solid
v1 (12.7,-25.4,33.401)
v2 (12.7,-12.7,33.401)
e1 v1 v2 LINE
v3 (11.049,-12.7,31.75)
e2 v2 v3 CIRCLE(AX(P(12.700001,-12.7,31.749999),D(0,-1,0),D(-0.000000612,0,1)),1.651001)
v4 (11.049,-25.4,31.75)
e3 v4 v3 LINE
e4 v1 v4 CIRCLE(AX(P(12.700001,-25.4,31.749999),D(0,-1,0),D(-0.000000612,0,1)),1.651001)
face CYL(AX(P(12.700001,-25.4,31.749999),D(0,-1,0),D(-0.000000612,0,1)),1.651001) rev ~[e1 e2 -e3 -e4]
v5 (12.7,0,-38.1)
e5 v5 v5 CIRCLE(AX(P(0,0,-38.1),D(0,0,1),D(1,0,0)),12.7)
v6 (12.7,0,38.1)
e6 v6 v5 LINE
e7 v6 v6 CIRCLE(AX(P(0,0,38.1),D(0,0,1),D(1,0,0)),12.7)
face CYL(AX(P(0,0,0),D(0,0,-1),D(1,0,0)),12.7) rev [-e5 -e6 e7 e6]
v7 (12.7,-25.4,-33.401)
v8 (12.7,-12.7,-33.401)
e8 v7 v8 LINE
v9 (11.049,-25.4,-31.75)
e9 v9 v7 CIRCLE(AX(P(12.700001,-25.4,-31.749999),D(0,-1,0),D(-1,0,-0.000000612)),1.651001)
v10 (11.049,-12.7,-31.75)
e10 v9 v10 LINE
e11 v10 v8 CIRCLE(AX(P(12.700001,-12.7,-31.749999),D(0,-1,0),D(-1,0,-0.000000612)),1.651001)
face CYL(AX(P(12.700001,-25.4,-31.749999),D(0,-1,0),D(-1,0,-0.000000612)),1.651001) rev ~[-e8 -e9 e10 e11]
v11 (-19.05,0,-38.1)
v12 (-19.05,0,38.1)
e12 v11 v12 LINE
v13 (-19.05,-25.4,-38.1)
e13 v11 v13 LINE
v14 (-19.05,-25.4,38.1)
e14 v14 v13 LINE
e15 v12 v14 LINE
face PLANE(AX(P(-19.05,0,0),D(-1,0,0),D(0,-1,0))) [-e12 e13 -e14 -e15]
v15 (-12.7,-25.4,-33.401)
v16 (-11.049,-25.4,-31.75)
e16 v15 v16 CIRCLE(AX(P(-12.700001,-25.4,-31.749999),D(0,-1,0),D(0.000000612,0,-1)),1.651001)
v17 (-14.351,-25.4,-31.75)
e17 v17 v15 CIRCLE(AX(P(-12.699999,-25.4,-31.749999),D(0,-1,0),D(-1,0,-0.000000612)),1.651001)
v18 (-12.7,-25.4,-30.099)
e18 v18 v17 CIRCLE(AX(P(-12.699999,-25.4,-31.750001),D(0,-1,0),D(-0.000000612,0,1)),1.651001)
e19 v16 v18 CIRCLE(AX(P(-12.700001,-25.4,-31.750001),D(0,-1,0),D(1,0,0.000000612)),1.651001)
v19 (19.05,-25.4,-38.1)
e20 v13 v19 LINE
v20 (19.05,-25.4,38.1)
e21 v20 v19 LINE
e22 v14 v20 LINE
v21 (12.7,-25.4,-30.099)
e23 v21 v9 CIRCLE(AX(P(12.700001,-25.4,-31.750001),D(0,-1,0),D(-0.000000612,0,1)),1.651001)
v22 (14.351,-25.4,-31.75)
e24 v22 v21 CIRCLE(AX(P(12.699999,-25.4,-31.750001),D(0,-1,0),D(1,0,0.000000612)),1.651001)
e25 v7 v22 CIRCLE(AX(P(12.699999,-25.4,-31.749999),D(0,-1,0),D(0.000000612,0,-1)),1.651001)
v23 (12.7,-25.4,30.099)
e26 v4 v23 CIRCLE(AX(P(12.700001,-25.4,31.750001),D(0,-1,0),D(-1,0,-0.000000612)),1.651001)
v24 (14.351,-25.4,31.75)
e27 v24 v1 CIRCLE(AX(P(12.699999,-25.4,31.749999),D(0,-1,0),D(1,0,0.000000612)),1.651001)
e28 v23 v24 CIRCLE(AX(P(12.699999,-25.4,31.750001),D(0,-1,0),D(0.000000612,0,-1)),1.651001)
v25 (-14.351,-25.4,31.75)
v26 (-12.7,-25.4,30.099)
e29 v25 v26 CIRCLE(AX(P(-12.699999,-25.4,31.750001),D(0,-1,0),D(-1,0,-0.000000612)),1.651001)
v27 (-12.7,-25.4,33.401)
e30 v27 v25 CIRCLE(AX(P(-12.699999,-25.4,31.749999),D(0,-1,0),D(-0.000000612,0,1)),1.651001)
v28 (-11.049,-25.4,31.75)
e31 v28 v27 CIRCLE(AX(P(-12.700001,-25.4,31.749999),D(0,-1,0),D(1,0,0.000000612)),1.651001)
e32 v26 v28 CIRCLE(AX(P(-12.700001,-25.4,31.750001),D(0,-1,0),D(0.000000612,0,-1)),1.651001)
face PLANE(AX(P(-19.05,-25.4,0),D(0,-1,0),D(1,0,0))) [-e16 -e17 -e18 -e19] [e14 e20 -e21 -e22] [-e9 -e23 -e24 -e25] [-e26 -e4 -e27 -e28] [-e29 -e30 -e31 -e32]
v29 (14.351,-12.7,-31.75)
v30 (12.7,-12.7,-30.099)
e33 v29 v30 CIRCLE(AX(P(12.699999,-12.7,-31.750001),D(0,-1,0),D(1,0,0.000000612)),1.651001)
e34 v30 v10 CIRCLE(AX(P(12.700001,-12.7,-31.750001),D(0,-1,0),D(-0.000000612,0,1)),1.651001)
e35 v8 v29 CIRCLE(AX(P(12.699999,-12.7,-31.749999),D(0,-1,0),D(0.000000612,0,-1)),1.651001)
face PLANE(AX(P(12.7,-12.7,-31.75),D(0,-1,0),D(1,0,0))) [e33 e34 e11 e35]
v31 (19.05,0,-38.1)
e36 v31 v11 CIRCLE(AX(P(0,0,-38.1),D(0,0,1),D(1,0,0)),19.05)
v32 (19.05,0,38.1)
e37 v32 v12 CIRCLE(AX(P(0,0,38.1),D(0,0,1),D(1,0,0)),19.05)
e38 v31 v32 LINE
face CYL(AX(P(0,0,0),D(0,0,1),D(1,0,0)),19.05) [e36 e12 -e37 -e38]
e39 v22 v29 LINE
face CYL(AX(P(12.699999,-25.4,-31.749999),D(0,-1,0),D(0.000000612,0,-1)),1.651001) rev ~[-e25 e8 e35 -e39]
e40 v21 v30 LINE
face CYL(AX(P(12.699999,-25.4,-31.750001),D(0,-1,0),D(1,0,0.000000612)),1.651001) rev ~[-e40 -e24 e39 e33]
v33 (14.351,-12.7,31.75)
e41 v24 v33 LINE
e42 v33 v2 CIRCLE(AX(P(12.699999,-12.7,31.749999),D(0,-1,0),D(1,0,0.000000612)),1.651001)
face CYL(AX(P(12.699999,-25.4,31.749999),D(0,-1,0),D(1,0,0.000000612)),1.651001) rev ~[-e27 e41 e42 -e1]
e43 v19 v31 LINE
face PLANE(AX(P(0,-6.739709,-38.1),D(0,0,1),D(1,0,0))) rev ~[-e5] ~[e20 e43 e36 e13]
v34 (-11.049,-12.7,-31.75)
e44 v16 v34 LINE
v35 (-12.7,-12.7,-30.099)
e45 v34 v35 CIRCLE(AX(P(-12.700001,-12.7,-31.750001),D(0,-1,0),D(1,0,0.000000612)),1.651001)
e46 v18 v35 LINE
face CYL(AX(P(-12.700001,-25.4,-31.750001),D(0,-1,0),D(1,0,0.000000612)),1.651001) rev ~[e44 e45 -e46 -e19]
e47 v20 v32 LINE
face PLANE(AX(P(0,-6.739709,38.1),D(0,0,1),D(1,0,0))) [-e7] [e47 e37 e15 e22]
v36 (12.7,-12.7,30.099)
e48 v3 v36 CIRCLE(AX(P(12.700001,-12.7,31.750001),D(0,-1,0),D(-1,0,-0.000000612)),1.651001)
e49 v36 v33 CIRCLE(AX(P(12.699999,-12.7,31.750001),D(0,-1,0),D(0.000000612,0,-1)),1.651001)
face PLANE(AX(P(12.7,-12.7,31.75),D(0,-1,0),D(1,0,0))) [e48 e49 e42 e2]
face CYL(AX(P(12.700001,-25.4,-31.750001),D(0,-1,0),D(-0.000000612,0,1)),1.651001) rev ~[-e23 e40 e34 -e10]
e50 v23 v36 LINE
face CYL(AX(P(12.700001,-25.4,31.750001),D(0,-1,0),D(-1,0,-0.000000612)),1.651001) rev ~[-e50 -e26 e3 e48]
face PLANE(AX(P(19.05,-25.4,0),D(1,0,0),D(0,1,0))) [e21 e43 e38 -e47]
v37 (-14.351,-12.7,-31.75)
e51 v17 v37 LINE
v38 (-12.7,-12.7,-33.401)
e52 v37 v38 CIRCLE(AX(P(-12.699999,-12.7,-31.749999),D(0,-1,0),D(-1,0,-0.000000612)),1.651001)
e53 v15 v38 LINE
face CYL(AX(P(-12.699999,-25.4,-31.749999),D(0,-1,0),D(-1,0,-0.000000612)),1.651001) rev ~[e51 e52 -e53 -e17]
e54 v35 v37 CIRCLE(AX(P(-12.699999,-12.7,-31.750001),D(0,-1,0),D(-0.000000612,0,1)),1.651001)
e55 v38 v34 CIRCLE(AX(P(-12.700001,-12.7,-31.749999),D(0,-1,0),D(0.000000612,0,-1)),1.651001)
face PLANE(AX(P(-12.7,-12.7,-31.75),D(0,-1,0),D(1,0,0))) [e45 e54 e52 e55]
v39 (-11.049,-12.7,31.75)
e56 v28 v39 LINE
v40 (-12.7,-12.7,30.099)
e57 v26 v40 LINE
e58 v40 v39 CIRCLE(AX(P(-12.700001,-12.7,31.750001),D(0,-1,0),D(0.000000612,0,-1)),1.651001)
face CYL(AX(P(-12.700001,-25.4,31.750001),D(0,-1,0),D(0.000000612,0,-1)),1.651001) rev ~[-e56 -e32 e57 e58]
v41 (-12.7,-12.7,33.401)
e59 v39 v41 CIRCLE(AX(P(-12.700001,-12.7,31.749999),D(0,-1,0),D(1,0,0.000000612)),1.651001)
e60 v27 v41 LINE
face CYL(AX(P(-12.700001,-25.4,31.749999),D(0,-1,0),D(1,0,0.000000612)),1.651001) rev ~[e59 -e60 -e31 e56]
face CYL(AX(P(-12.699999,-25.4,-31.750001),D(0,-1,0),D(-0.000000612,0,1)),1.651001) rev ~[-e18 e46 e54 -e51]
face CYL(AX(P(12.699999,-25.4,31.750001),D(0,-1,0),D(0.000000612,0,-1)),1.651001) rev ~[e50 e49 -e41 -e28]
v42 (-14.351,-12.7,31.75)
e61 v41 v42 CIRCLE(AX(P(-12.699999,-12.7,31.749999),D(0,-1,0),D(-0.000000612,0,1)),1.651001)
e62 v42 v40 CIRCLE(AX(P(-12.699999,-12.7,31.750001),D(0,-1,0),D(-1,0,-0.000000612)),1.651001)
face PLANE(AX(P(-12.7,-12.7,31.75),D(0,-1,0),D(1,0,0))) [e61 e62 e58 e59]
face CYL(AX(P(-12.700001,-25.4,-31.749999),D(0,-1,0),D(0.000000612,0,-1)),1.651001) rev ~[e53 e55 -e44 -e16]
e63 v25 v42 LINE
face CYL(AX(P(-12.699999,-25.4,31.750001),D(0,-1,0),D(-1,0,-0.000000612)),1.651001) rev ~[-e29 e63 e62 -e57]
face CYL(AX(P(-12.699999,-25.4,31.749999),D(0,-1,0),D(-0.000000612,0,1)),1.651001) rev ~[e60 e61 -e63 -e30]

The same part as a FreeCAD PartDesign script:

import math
import FreeCAD as App
import Part
import Sketcher
Q = App.Units.Quantity

doc = App.newDocument("Part")
body = doc.addObject("PartDesign::Body", "Body")

# Sketch on XY plane
sketch1 = body.newObject("Sketcher::SketchObject", "Sketch")
sketch1.AttachmentSupport = (doc.getObject("XY_Plane"), [""])
sketch1.MapMode = "FlatFace"
sketch1.addGeometry(Part.LineSegment(App.Vector(19.05, -25.4, 0), App.Vector(19.05, 0, 0)), False)
sketch1.addGeometry(Part.ArcOfCircle(Part.Circle(App.Vector(0, 0, 0), App.Vector(0, 0, 1), 19.05), math.radians(0), math.radians(180)), False)
sketch1.addGeometry(Part.LineSegment(App.Vector(-19.05, 0, 0), App.Vector(-19.05, -25.4, 0)), False)
sketch1.addGeometry(Part.LineSegment(App.Vector(-19.05, -25.4, 0), App.Vector(19.05, -25.4, 0)), False)
sketch1.addGeometry(Part.Circle(App.Vector(0, 0, 0), App.Vector(0, 0, 1), 12.7), False)
sketch1.addConstraint(Sketcher.Constraint("Tangent", 0, 2, 1, 1))
sketch1.addConstraint(Sketcher.Constraint("Tangent", 1, 2, 2, 1))
sketch1.addConstraint(Sketcher.Constraint("Coincident", 2, 2, 3, 1))
sketch1.addConstraint(Sketcher.Constraint("Coincident", 3, 2, 0, 1))
sketch1.addConstraint(Sketcher.Constraint("Vertical", 0))
sketch1.addConstraint(Sketcher.Constraint("Vertical", 2))
sketch1.addConstraint(Sketcher.Constraint("Horizontal", 3))
sketch1.addConstraint(Sketcher.Constraint("Coincident", 1, 3, -1, 1))
sketch1.addConstraint(Sketcher.Constraint("Coincident", 4, 3, -1, 1))
sketch1.addConstraint(Sketcher.Constraint("Diameter", 4, Q("1 in")))
sketch1.addConstraint(Sketcher.Constraint("DistanceY", 0, 1, 0, 2, Q("1 in")))
sketch1.addConstraint(Sketcher.Constraint("Radius", 1, Q("0.75 in")))
pad1 = body.newObject("PartDesign::Pad", "Pad")
pad1.Profile = sketch1
pad1.Length = Q("3 in")
pad1.Midplane = True

# Sketch on XZ plane
sketch2 = body.newObject("Sketcher::SketchObject", "Sketch001")
sketch2.AttachmentSupport = (doc.getObject("XZ_Plane"), [""])
sketch2.MapMode = "FlatFace"
sketch2.AttachmentOffset = App.Placement(App.Vector(0, 0, 1 * 25.4), App.Rotation())
sketch2.addGeometry(Part.ArcOfCircle(Part.Circle(App.Vector(-12.699999, -31.750001, 0), App.Vector(0, 0, 1), 1.651001), math.radians(90.000035), math.radians(179.999965)), False)
sketch2.addGeometry(Part.ArcOfCircle(Part.Circle(App.Vector(-12.699999, -31.749999, 0), App.Vector(0, 0, 1), 1.651001), math.radians(-179.999965), math.radians(-90.000035)), False)
sketch2.addGeometry(Part.ArcOfCircle(Part.Circle(App.Vector(-12.700001, -31.749999, 0), App.Vector(0, 0, 1), 1.651001), math.radians(-89.999965), math.radians(-0.000035)), False)
sketch2.addGeometry(Part.ArcOfCircle(Part.Circle(App.Vector(-12.700001, -31.750001, 0), App.Vector(0, 0, 1), 1.651001), math.radians(0.000035), math.radians(89.999965)), False)
sketch2.addGeometry(Part.ArcOfCircle(Part.Circle(App.Vector(12.700001, -31.750001, 0), App.Vector(0, 0, 1), 1.651001), math.radians(90.000035), math.radians(179.999965)), False)
sketch2.addGeometry(Part.ArcOfCircle(Part.Circle(App.Vector(12.700001, -31.749999, 0), App.Vector(0, 0, 1), 1.651001), math.radians(-179.999965), math.radians(-90.000035)), False)
sketch2.addGeometry(Part.ArcOfCircle(Part.Circle(App.Vector(12.699999, -31.749999, 0), App.Vector(0, 0, 1), 1.651001), math.radians(-89.999965), math.radians(-0.000035)), False)
sketch2.addGeometry(Part.ArcOfCircle(Part.Circle(App.Vector(12.699999, -31.750001, 0), App.Vector(0, 0, 1), 1.651001), math.radians(0.000035), math.radians(89.999965)), False)
sketch2.addGeometry(Part.ArcOfCircle(Part.Circle(App.Vector(-12.699999, 31.749999, 0), App.Vector(0, 0, 1), 1.651001), math.radians(90.000035), math.radians(179.999965)), False)
sketch2.addGeometry(Part.ArcOfCircle(Part.Circle(App.Vector(-12.699999, 31.750001, 0), App.Vector(0, 0, 1), 1.651001), math.radians(-179.999965), math.radians(-90.000035)), False)
sketch2.addGeometry(Part.ArcOfCircle(Part.Circle(App.Vector(-12.700001, 31.750001, 0), App.Vector(0, 0, 1), 1.651001), math.radians(-89.999965), math.radians(-0.000035)), False)
sketch2.addGeometry(Part.ArcOfCircle(Part.Circle(App.Vector(-12.700001, 31.749999, 0), App.Vector(0, 0, 1), 1.651001), math.radians(0.000035), math.radians(89.999965)), False)
sketch2.addGeometry(Part.ArcOfCircle(Part.Circle(App.Vector(12.700001, 31.749999, 0), App.Vector(0, 0, 1), 1.651001), math.radians(90.000035), math.radians(179.999965)), False)
sketch2.addGeometry(Part.ArcOfCircle(Part.Circle(App.Vector(12.700001, 31.750001, 0), App.Vector(0, 0, 1), 1.651001), math.radians(-179.999965), math.radians(-90.000035)), False)
sketch2.addGeometry(Part.ArcOfCircle(Part.Circle(App.Vector(12.699999, 31.750001, 0), App.Vector(0, 0, 1), 1.651001), math.radians(-89.999965), math.radians(-0.000035)), False)
sketch2.addGeometry(Part.ArcOfCircle(Part.Circle(App.Vector(12.699999, 31.749999, 0), App.Vector(0, 0, 1), 1.651001), math.radians(0.000035), math.radians(89.999965)), False)
sketch2.addConstraint(Sketcher.Constraint("Tangent", 0, 2, 1, 1))
sketch2.addConstraint(Sketcher.Constraint("Tangent", 1, 2, 2, 1))
sketch2.addConstraint(Sketcher.Constraint("Tangent", 2, 2, 3, 1))
sketch2.addConstraint(Sketcher.Constraint("Tangent", 3, 2, 0, 1))
sketch2.addConstraint(Sketcher.Constraint("Tangent", 4, 2, 5, 1))
sketch2.addConstraint(Sketcher.Constraint("Tangent", 5, 2, 6, 1))
sketch2.addConstraint(Sketcher.Constraint("Tangent", 6, 2, 7, 1))
sketch2.addConstraint(Sketcher.Constraint("Tangent", 7, 2, 4, 1))
sketch2.addConstraint(Sketcher.Constraint("Tangent", 8, 2, 9, 1))
sketch2.addConstraint(Sketcher.Constraint("Tangent", 9, 2, 10, 1))
sketch2.addConstraint(Sketcher.Constraint("Tangent", 10, 2, 11, 1))
sketch2.addConstraint(Sketcher.Constraint("Tangent", 11, 2, 8, 1))
sketch2.addConstraint(Sketcher.Constraint("Tangent", 12, 2, 13, 1))
sketch2.addConstraint(Sketcher.Constraint("Tangent", 13, 2, 14, 1))
sketch2.addConstraint(Sketcher.Constraint("Tangent", 14, 2, 15, 1))
sketch2.addConstraint(Sketcher.Constraint("Tangent", 15, 2, 12, 1))
sketch2.addConstraint(Sketcher.Constraint("Equal", 0, 1))
sketch2.addConstraint(Sketcher.Constraint("Equal", 3, 4))
sketch2.addConstraint(Sketcher.Constraint("Equal", 4, 5))
sketch2.addConstraint(Sketcher.Constraint("Equal", 7, 8))
sketch2.addConstraint(Sketcher.Constraint("Equal", 8, 9))
sketch2.addConstraint(Sketcher.Constraint("Equal", 11, 12))
sketch2.addConstraint(Sketcher.Constraint("Equal", 12, 13))
sketch2.addConstraint(Sketcher.Constraint("Symmetric", 4, 3, 8, 3, -1, 1))
sketch2.addConstraint(Sketcher.Constraint("Symmetric", 0, 3, 12, 3, -1, 1))
sketch2.addConstraint(Sketcher.Constraint("Symmetric", 0, 3, 4, 3, -2))
sketch2.addConstraint(Sketcher.Constraint("Horizontal", 7, 3, 0, 2))
sketch2.addConstraint(Sketcher.Constraint("Horizontal", 0, 2, 2, 2))
sketch2.addConstraint(Sketcher.Constraint("Horizontal", 2, 2, 4, 2))
sketch2.addConstraint(Sketcher.Constraint("Horizontal", 4, 2, 6, 2))
sketch2.addConstraint(Sketcher.Constraint("Horizontal", 15, 3, 8, 2))
sketch2.addConstraint(Sketcher.Constraint("Horizontal", 8, 2, 10, 2))
sketch2.addConstraint(Sketcher.Constraint("Horizontal", 10, 2, 12, 2))
sketch2.addConstraint(Sketcher.Constraint("Horizontal", 12, 2, 14, 2))
sketch2.addConstraint(Sketcher.Constraint("Vertical", 11, 3, 1, 2))
sketch2.addConstraint(Sketcher.Constraint("Vertical", 1, 2, 3, 2))
sketch2.addConstraint(Sketcher.Constraint("Vertical", 15, 3, 5, 2))
sketch2.addConstraint(Sketcher.Constraint("Vertical", 5, 2, 7, 2))
sketch2.addConstraint(Sketcher.Constraint("Vertical", 3, 2, 9, 2))
sketch2.addConstraint(Sketcher.Constraint("Vertical", 9, 2, 11, 2))
sketch2.addConstraint(Sketcher.Constraint("Vertical", 7, 2, 13, 2))
sketch2.addConstraint(Sketcher.Constraint("Vertical", 13, 2, 15, 2))
sketch2.addConstraint(Sketcher.Constraint("Radius", 0, Q("0.065 in")))
sketch2.addConstraint(Sketcher.Constraint("DistanceX", 0, 3, 4, 3, Q("1 in")))
sketch2.addConstraint(Sketcher.Constraint("DistanceY", 1, 3, 8, 3, Q("2.4999999 in")))
pocket1 = body.newObject("PartDesign::Pocket", "Pocket")
pocket1.Profile = sketch2
pocket1.Length = Q("0.5 in")

doc.recompute()
